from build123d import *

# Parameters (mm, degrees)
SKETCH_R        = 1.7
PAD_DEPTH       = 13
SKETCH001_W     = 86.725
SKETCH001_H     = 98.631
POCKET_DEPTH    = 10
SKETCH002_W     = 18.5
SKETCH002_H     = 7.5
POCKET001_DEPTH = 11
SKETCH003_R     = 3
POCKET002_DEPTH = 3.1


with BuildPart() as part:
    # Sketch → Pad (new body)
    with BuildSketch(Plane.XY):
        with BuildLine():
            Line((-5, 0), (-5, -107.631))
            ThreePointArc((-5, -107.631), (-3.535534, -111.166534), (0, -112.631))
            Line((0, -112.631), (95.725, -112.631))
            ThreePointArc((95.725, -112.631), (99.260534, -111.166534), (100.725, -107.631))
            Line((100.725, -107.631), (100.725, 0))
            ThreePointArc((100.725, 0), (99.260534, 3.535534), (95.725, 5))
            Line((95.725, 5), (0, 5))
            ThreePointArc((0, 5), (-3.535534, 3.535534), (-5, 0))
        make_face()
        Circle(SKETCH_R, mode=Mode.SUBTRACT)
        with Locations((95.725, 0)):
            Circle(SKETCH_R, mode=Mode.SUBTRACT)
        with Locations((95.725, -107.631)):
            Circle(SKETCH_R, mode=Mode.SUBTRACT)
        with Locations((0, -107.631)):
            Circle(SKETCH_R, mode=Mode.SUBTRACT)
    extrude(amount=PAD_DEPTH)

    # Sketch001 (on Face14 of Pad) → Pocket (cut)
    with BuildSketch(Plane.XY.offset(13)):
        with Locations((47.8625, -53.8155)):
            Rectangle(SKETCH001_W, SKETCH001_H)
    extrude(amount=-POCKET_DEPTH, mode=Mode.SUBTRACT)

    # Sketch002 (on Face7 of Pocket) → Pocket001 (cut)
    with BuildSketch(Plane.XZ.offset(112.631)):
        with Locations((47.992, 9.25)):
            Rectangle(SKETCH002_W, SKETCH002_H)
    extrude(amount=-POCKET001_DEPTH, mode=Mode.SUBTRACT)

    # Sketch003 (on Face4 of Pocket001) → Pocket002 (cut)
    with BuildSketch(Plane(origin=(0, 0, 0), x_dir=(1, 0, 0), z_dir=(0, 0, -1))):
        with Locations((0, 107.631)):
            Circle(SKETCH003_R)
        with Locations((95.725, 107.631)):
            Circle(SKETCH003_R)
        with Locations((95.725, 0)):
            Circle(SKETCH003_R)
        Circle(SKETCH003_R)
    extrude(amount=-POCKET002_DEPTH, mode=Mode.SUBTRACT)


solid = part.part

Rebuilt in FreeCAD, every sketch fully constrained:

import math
import FreeCAD as App
import Part
import Sketcher

V = App.Vector

doc = App.newDocument("Part")
body = doc.addObject("PartDesign::Body", "Body")

# Sketch on XY plane
sketch1 = body.newObject("Sketcher::SketchObject", "Sketch")
sketch1.AttachmentSupport = (doc.getObject("XY_Plane"), [""])
sketch1.MapMode = "FlatFace"
sketch1.addGeometry([
    Part.LineSegment(V(-5, 0, 0), V(-5, -107.6, 0)),  # 0
    Part.ArcOfCircle(Part.Circle(V(0, -107.6, 0), V(0, 0, 1), 5), math.radians(180), math.radians(270)),  # 1
    Part.LineSegment(V(0, -112.6, 0), V(95.7, -112.6, 0)),  # 2
    Part.ArcOfCircle(Part.Circle(V(95.7, -107.6, 0), V(0, 0, 1), 5), math.radians(-90), math.radians(0)),  # 3
    Part.LineSegment(V(100.7, -107.6, 0), V(100.7, 0, 0)),  # 4
    Part.ArcOfCircle(Part.Circle(V(95.7, 0, 0), V(0, 0, 1), 5), math.radians(0), math.radians(90)),  # 5
    Part.LineSegment(V(95.7, 5, 0), V(0, 5, 0)),  # 6
    Part.ArcOfCircle(Part.Circle(V(0, 0, 0), V(0, 0, 1), 5), math.radians(90), math.radians(180)),  # 7
    Part.Circle(V(0, -107.6, 0), V(0, 0, 1), 1.7),  # 8
    Part.Circle(V(95.7, -107.6, 0), V(0, 0, 1), 1.7),  # 9
    Part.Circle(V(0, 0, 0), V(0, 0, 1), 1.7),  # 10
    Part.Circle(V(95.7, 0, 0), V(0, 0, 1), 1.7),  # 11
], False)
sketch1.addConstraint([
    Sketcher.Constraint("Tangent", 0, 2, 1, 1),
    Sketcher.Constraint("Tangent", 1, 2, 2, 1),
    Sketcher.Constraint("Tangent", 2, 2, 3, 1),
    Sketcher.Constraint("Tangent", 3, 2, 4, 1),
    Sketcher.Constraint("Tangent", 4, 2, 5, 1),
    Sketcher.Constraint("Tangent", 5, 2, 6, 1),
    Sketcher.Constraint("Tangent", 6, 2, 7, 1),
    Sketcher.Constraint("Tangent", 7, 2, 0, 1),
    Sketcher.Constraint("Vertical", 0),
    Sketcher.Constraint("Horizontal", 2),
    Sketcher.Constraint("Vertical", 4),
    Sketcher.Constraint("Horizontal", 6),
    Sketcher.Constraint("Coincident", 7, 3, -1, 1),
    Sketcher.Constraint("Coincident", 10, 3, -1, 1),
    Sketcher.Constraint("Coincident", 8, 3, 1, 3),
    Sketcher.Constraint("Coincident", 9, 3, 3, 3),
    Sketcher.Constraint("Coincident", 11, 3, 5, 3),
    Sketcher.Constraint("Equal", 1, 3),
    Sketcher.Constraint("Equal", 3, 5),
    Sketcher.Constraint("Equal", 5, 7),
    Sketcher.Constraint("Equal", 8, 9),
    Sketcher.Constraint("Equal", 9, 10),
    Sketcher.Constraint("Equal", 10, 11),
    Sketcher.Constraint("Radius", 1, 5.0),
    Sketcher.Constraint("Diameter", 8, 3.4),
    Sketcher.Constraint("DistanceX", 2, 1, 2, 2, 95.725),
    Sketcher.Constraint("DistanceY", 0, 2, 0, 1, 107.631),
])
pad1 = body.newObject("PartDesign::Pad", "Pad")
pad1.Profile = sketch1
pad1.Length = 13

# Sketch on XY plane
sketch2 = body.newObject("Sketcher::SketchObject", "Sketch001")
sketch2.AttachmentSupport = (doc.getObject("XY_Plane"), [""])
sketch2.MapMode = "FlatFace"
sketch2.AttachmentOffset = App.Placement(V(0, 0, 13), App.Rotation())
sketch2.addGeometry([
    Part.LineSegment(V(4, -4, 0), V(4, -103, 0)),
    Part.LineSegment(V(4, -103, 0), V(91, -103, 0)),
    Part.LineSegment(V(91, -103, 0), V(91, -4, 0)),
    Part.LineSegment(V(91, -4, 0), V(4, -4, 0)),
], False)
sketch2.addConstraint([
    Sketcher.Constraint("Coincident", 0, 2, 1, 1),
    Sketcher.Constraint("Coincident", 1, 2, 2, 1),
    Sketcher.Constraint("Coincident", 2, 2, 3, 1),
    Sketcher.Constraint("Coincident", 3, 2, 0, 1),
    Sketcher.Constraint("Vertical", 0),
    Sketcher.Constraint("Horizontal", 1),
    Sketcher.Constraint("Vertical", 2),
    Sketcher.Constraint("Horizontal", 3),
    Sketcher.Constraint("DistanceX", -1, 1, 0, 2, 4.5),
    Sketcher.Constraint("DistanceY", 2, 2, -1, 1, 4.5),
    Sketcher.Constraint("DistanceX", 1, 1, 1, 2, 86.725),
    Sketcher.Constraint("DistanceY", 0, 2, 0, 1, 98.631),
])
pocket1 = body.newObject("PartDesign::Pocket", "Pocket")
pocket1.Profile = sketch2
pocket1.Length = 10

# Sketch on XZ plane
sketch3 = body.newObject("Sketcher::SketchObject", "Sketch002")
sketch3.AttachmentSupport = (doc.getObject("XZ_Plane"), [""])
sketch3.MapMode = "FlatFace"
sketch3.AttachmentOffset = App.Placement(V(0, 0, 112.631), App.Rotation())
sketch3.addGeometry([
    Part.LineSegment(V(39, 13, 0), V(39, 6, 0)),
    Part.LineSegment(V(39, 6, 0), V(57, 6, 0)),
    Part.LineSegment(V(57, 6, 0), V(57, 13, 0)),
    Part.LineSegment(V(57, 13, 0), V(39, 13, 0)),
], False)
sketch3.addConstraint([
    Sketcher.Constraint("Coincident", 0, 2, 1, 1),
    Sketcher.Constraint("Coincident", 1, 2, 2, 1),
    Sketcher.Constraint("Coincident", 2, 2, 3, 1),
    Sketcher.Constraint("Coincident", 3, 2, 0, 1),
    Sketcher.Constraint("Vertical", 0),
    Sketcher.Constraint("Horizontal", 1),
    Sketcher.Constraint("Vertical", 2),
    Sketcher.Constraint("Horizontal", 3),
    Sketcher.Constraint("DistanceX", 1, 1, 1, 2, 18.5),
    Sketcher.Constraint("DistanceY", 0, 2, 0, 1, 7.5),
    Sketcher.Constraint("DistanceY", -1, 1, 2, 2, 13.0),
    Sketcher.Constraint("DistanceX", -1, 1, 0, 2, 38.742),
])
pocket2 = body.newObject("PartDesign::Pocket", "Pocket001")
pocket2.Profile = sketch3
pocket2.Length = 11

# Sketch on XY plane
sketch4 = body.newObject("Sketcher::SketchObject", "Sketch003")
sketch4.AttachmentSupport = (doc.getObject("XY_Plane"), [""])
sketch4.MapMode = "FlatFace"
sketch4.addGeometry([
    Part.Circle(V(0, -107.6, 0), V(0, 0, 1), 3),
    Part.Circle(V(95.7, -107.6, 0), V(0, 0, 1), 3),
    Part.Circle(V(95.7, 0, 0), V(0, 0, 1), 3),
    Part.Circle(V(0, 0, 0), V(0, 0, 1), 3),
], False)
sketch4.addConstraint([
    Sketcher.Constraint("Coincident", 3, 3, -1, 1),
    Sketcher.Constraint("Equal", 0, 1),
    Sketcher.Constraint("Equal", 1, 2),
    Sketcher.Constraint("Equal", 2, 3),
    Sketcher.Constraint("PointOnObject", 0, 3, -2),
    Sketcher.Constraint("PointOnObject", 2, 3, -1),
    Sketcher.Constraint("Horizontal", 0, 3, 1, 3),
    Sketcher.Constraint("Vertical", 1, 3, 2, 3),
    Sketcher.Constraint("Diameter", 0, 6.0),
    Sketcher.Constraint("DistanceY", 0, 3, -1, 1, 107.631),
    Sketcher.Constraint("DistanceX", -1, 1, 1, 3, 95.725),
])
pocket3 = body.newObject("PartDesign::Pocket", "Pocket002")
pocket3.Profile = sketch4
pocket3.Length = 3.1
pocket3.Reversed = True

doc.recompute()
